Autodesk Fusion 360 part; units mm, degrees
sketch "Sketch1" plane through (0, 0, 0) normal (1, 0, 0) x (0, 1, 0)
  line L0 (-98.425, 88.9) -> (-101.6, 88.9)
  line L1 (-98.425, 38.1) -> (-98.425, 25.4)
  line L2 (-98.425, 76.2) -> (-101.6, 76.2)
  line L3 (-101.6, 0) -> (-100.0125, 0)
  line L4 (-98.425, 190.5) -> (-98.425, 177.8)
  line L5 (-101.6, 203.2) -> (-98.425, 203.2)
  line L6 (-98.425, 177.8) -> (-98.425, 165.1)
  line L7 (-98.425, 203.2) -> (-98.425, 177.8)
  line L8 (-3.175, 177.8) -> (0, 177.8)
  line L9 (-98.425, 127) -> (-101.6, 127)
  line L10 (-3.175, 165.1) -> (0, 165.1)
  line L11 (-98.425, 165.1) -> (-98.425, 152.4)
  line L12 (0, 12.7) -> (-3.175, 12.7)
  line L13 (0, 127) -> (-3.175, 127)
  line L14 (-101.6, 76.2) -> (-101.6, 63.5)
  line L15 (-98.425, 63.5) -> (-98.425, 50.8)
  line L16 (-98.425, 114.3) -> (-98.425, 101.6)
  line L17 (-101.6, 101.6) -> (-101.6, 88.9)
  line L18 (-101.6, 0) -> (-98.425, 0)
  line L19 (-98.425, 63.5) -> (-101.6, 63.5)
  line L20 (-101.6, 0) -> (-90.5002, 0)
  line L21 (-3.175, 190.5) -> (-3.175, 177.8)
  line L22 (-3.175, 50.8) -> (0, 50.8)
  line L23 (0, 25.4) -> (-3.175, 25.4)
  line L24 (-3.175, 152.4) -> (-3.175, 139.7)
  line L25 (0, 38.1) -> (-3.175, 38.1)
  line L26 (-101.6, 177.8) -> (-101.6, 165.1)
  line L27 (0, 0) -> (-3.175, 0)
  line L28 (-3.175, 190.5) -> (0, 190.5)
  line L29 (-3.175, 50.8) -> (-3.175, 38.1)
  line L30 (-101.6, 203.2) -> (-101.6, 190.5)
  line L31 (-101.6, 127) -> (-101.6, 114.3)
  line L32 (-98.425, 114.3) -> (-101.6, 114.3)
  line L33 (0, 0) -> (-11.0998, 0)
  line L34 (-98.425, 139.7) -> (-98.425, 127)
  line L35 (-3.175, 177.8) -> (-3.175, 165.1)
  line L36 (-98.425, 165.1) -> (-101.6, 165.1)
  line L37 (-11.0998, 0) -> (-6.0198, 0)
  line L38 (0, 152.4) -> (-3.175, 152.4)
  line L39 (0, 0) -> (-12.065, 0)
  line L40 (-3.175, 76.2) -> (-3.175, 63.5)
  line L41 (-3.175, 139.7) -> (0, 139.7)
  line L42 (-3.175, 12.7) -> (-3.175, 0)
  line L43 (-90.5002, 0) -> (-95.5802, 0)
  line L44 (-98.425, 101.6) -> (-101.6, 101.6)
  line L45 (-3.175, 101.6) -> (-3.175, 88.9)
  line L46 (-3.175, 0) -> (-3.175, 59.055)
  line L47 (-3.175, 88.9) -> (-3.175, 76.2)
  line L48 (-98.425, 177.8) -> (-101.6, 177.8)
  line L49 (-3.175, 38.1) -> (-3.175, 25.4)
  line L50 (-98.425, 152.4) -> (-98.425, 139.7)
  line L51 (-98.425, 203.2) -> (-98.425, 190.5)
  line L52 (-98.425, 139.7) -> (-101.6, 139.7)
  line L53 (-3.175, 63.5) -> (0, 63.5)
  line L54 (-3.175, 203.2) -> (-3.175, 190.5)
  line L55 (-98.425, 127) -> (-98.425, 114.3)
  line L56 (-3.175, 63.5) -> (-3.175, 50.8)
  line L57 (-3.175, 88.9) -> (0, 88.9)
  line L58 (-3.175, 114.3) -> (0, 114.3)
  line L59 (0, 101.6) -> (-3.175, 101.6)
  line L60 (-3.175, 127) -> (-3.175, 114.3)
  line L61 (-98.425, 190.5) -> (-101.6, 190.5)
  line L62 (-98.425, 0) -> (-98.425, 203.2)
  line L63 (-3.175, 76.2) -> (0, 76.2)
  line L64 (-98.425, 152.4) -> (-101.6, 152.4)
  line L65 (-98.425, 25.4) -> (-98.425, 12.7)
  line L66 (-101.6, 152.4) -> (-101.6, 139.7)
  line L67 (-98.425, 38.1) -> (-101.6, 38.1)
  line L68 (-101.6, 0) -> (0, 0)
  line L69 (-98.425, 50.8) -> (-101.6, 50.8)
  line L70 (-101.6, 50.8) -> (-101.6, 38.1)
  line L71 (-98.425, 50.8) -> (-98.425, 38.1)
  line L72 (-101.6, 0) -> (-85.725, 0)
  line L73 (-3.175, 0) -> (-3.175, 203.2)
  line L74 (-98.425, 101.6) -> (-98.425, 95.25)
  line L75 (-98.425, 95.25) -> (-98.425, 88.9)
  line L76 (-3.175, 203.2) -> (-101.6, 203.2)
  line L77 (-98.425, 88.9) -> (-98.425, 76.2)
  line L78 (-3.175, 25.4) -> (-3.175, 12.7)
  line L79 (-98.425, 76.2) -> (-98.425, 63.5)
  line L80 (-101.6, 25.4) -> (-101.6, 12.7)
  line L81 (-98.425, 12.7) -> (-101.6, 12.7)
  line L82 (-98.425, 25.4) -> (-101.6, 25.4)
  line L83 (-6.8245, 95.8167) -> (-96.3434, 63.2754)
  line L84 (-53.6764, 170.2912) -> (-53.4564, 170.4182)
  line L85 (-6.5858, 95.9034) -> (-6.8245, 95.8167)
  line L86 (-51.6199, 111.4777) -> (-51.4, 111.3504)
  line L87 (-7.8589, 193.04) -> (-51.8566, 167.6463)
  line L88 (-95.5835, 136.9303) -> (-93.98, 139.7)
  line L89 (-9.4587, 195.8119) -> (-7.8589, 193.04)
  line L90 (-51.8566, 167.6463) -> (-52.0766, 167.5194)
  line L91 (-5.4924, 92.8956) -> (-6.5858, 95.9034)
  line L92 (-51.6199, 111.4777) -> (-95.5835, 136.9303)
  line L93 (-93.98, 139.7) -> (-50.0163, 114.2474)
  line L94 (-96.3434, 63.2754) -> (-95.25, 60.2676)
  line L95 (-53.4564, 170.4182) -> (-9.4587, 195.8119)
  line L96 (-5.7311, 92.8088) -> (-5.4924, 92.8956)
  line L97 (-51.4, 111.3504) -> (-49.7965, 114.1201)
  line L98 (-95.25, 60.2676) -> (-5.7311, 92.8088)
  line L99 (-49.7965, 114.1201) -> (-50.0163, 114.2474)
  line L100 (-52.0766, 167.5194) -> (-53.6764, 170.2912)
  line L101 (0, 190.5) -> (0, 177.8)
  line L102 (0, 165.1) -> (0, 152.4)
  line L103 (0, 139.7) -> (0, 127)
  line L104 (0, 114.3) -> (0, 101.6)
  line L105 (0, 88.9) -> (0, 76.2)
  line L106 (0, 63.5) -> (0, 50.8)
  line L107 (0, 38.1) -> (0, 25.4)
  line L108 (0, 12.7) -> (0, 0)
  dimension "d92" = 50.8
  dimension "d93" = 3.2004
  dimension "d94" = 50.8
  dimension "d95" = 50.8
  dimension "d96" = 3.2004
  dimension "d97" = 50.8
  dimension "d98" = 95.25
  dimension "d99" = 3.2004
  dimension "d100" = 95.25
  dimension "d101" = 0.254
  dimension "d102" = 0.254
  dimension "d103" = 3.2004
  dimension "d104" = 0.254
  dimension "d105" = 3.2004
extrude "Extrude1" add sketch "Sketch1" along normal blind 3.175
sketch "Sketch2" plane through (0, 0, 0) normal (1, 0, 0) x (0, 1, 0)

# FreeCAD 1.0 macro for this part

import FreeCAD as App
import Part
import Sketcher

V = App.Vector
Q = App.Units.Quantity


def add_polygon(sketch, points):
    """Adds a closed chain of lines whose ends are joined by coincident constraints."""
    first, n = sketch.GeometryCount, len(points)
    for a, b in zip(points, points[1:] + points[:1]):
        sketch.addGeometry(Part.LineSegment(App.Vector(*a, 0), App.Vector(*b, 0)), False)
    for i in range(n):
        sketch.addConstraint(Sketcher.Constraint("Coincident", first + i, 2, first + (i + 1) % n, 1))

doc = App.newDocument("Part")
body = doc.addObject("PartDesign::Body", "Body")

# Sketch on YZ plane
sketch1 = body.newObject("Sketcher::SketchObject", "Sketch")
sketch1.AttachmentSupport = (doc.getObject("YZ_Plane"), [""])
sketch1.MapMode = "FlatFace"
add_polygon(sketch1, [(-98.425, 114.3), (-98.425, 101.6), (-101.6, 101.6), (-101.6, 88.9), (-98.425, 88.9), (-98.425, 76.2), (-101.6, 76.2), (-101.6, 63.5), (-98.425, 63.5), (-98.425, 50.8), (-101.6, 50.8), (-101.6, 38.1), (-98.425, 38.1), (-98.425, 25.4), (-101.6, 25.4), (-101.6, 12.7), (-98.425, 12.7), (-98.425, 0), (0, 0), (0, 12.7), (-3.175, 12.7), (-3.175, 25.4), (0, 25.4), (0, 38.1), (-3.175, 38.1), (-3.175, 50.8), (0, 50.8), (0, 63.5), (-3.175, 63.5), (-3.175, 76.2), (0, 76.2), (0, 88.9), (-3.175, 88.9), (-3.175, 101.6), (0, 101.6), (0, 114.3), (-3.175, 114.3), (-3.175, 127), (0, 127), (0, 139.7), (-3.175, 139.7), (-3.175, 152.4), (0, 152.4), (0, 165.1), (-3.175, 165.1), (-3.175, 177.8), (0, 177.8), (0, 190.5), (-3.175, 190.5), (-3.175, 203.2), (-101.6, 203.2), (-101.6, 190.5), (-98.425, 190.5), (-98.425, 177.8), (-101.6, 177.8), (-101.6, 165.1), (-98.425, 165.1), (-98.425, 152.4), (-101.6, 152.4), (-101.6, 139.7), (-98.425, 139.7), (-98.425, 127), (-101.6, 127), (-101.6, 114.3)])  # lines 0-63
add_polygon(sketch1, [(-96.3434, 63.2754), (-6.8245, 95.8167), (-6.5858, 95.9034), (-5.4924, 92.8956), (-5.7311, 92.8088), (-95.25, 60.2676)])  # lines 64-69
add_polygon(sketch1, [(-51.4, 111.3504), (-51.6199, 111.4777), (-95.5835, 136.9303), (-93.98, 139.7), (-50.0163, 114.2474), (-49.7965, 114.1201)])  # lines 70-75
add_polygon(sketch1, [(-52.0766, 167.5194), (-53.6764, 170.2912), (-53.4564, 170.4182), (-9.4587, 195.8119), (-7.8589, 193.04), (-51.8566, 167.6463)])  # lines 76-81
sketch1.addConstraint([
    Sketcher.Constraint("Vertical", 0),
    Sketcher.Constraint("Horizontal", 1),
    Sketcher.Constraint("Vertical", 2),
    Sketcher.Constraint("Horizontal", 3),
    Sketcher.Constraint("Vertical", 4),
    Sketcher.Constraint("Horizontal", 5),
    Sketcher.Constraint("Vertical", 6),
    Sketcher.Constraint("Horizontal", 7),
    Sketcher.Constraint("Vertical", 8),
    Sketcher.Constraint("Horizontal", 9),
    Sketcher.Constraint("Vertical", 10),
    Sketcher.Constraint("Horizontal", 11),
    Sketcher.Constraint("Vertical", 12),
    Sketcher.Constraint("Horizontal", 13),
    Sketcher.Constraint("Vertical", 14),
    Sketcher.Constraint("Horizontal", 15),
    Sketcher.Constraint("Vertical", 16),
    Sketcher.Constraint("Horizontal", 17),
    Sketcher.Constraint("Vertical", 18),
    Sketcher.Constraint("Horizontal", 19),
    Sketcher.Constraint("Vertical", 20),
    Sketcher.Constraint("Horizontal", 21),
    Sketcher.Constraint("Vertical", 22),
    Sketcher.Constraint("Horizontal", 23),
    Sketcher.Constraint("Vertical", 24),
    Sketcher.Constraint("Horizontal", 25),
    Sketcher.Constraint("Vertical", 26),
    Sketcher.Constraint("Horizontal", 27),
    Sketcher.Constraint("Vertical", 28),
    Sketcher.Constraint("Horizontal", 29),
    Sketcher.Constraint("Vertical", 30),
    Sketcher.Constraint("Horizontal", 31),
    Sketcher.Constraint("Vertical", 32),
    Sketcher.Constraint("Horizontal", 33),
    Sketcher.Constraint("Vertical", 34),
    Sketcher.Constraint("Horizontal", 35),
    Sketcher.Constraint("Vertical", 36),
    Sketcher.Constraint("Horizontal", 37),
    Sketcher.Constraint("Vertical", 38),
    Sketcher.Constraint("Horizontal", 39),
    Sketcher.Constraint("Vertical", 40),
    Sketcher.Constraint("Horizontal", 41),
    Sketcher.Constraint("Vertical", 42),
    Sketcher.Constraint("Horizontal", 43),
    Sketcher.Constraint("Vertical", 44),
    Sketcher.Constraint("Horizontal", 45),
    Sketcher.Constraint("Vertical", 46),
    Sketcher.Constraint("Horizontal", 47),
    Sketcher.Constraint("Vertical", 48),
    Sketcher.Constraint("Horizontal", 49),
    Sketcher.Constraint("Vertical", 50),
    Sketcher.Constraint("Horizontal", 51),
    Sketcher.Constraint("Vertical", 52),
    Sketcher.Constraint("Horizontal", 53),
    Sketcher.Constraint("Vertical", 54),
    Sketcher.Constraint("Horizontal", 55),
    Sketcher.Constraint("Vertical", 56),
    Sketcher.Constraint("Horizontal", 57),
    Sketcher.Constraint("Vertical", 58),
    Sketcher.Constraint("Horizontal", 59),
    Sketcher.Constraint("Vertical", 60),
    Sketcher.Constraint("Horizontal", 61),
    Sketcher.Constraint("Vertical", 62),
    Sketcher.Constraint("Horizontal", 63),
    Sketcher.Constraint("Coincident", 17, 2, -1, 1),
    Sketcher.Constraint("PointOnObject", 21, 2, -2),
    Sketcher.Constraint("PointOnObject", 25, 2, -2),
    Sketcher.Constraint("PointOnObject", 29, 2, -2),
    Sketcher.Constraint("PointOnObject", 33, 2, -2),
    Sketcher.Constraint("PointOnObject", 37, 2, -2),
    Sketcher.Constraint("PointOnObject", 41, 2, -2),
    Sketcher.Constraint("PointOnObject", 45, 2, -2),
    Sketcher.Constraint("Distance", 71, Q("2 in")),
    Sketcher.Constraint("Distance", 73, Q("2 in")),
    Sketcher.Constraint("Distance", 78, Q("2 in")),
    Sketcher.Constraint("Distance", 80, Q("2 in")),
    Sketcher.Constraint("DistanceY", -1, 1, 8, 2, Q("2 in")),
    Sketcher.Constraint("DistanceY", -1, 1, 24, 2, Q("2 in")),
    Sketcher.Constraint("Distance", 64, Q("3.75 in")),
    Sketcher.Constraint("Distance", 65, Q("0.01 in")),
    Sketcher.Constraint("Distance", 67, Q("0.01 in")),
    Sketcher.Constraint("Distance", 68, Q("3.75 in")),
    Sketcher.Constraint("Distance", 70, Q("0.01 in")),
    Sketcher.Constraint("Distance", 74, Q("0.01 in")),
    Sketcher.Constraint("Distance", 77, Q("0.01 in")),
    Sketcher.Constraint("Distance", 81, Q("0.01 in")),
    Sketcher.Constraint("DistanceX", 68, 2, -1, 1, Q("3.75 in")),
    Sketcher.Constraint("Distance", 66, Q("0.126 in")),
    Sketcher.Constraint("Distance", 69, Q("0.126 in")),
    Sketcher.Constraint("Distance", 72, Q("0.126 in")),
    Sketcher.Constraint("Distance", 75, Q("0.126 in")),
    Sketcher.Constraint("Distance", 76, Q("0.126 in")),
    Sketcher.Constraint("Distance", 79, Q("0.126 in")),
    Sketcher.Constraint("DistanceY", 0, 2, 0, 1, Q("0.5 in")),
    Sketcher.Constraint("DistanceY", 2, 2, 2, 1, Q("0.5 in")),
    Sketcher.Constraint("DistanceY", 4, 2, 4, 1, Q("0.5 in")),
    Sketcher.Constraint("DistanceY", 6, 2, 6, 1, Q("0.5 in")),
    Sketcher.Constraint("DistanceY", 8, 2, 8, 1, Q("0.5 in")),
    Sketcher.Constraint("DistanceY", 10, 2, 10, 1, Q("0.5 in")),
    Sketcher.Constraint("DistanceY", 12, 2, 12, 1, Q("0.5 in")),
    Sketcher.Constraint("DistanceY", 14, 2, 14, 1, Q("0.5 in")),
    Sketcher.Constraint("DistanceY", 18, 1, 18, 2, Q("0.5 in")),
    Sketcher.Constraint("DistanceY", 20, 1, 20, 2, Q("0.5 in")),
    Sketcher.Constraint("DistanceY", 22, 1, 22, 2, Q("0.5 in")),
    Sketcher.Constraint("DistanceY", 26, 1, 26, 2, Q("0.5 in")),
    Sketcher.Constraint("DistanceY", 28, 1, 28, 2, Q("0.5 in")),
    Sketcher.Constraint("DistanceY", 30, 1, 30, 2, Q("0.5 in")),
    Sketcher.Constraint("DistanceY", 32, 1, 32, 2, Q("0.5 in")),
    Sketcher.Constraint("DistanceY", 34, 1, 34, 2, Q("0.5 in")),
    Sketcher.Constraint("DistanceY", 36, 1, 36, 2, Q("0.5 in")),
    Sketcher.Constraint("DistanceY", 38, 1, 38, 2, Q("0.5 in")),
    Sketcher.Constraint("DistanceY", 40, 1, 40, 2, Q("0.5 in")),
    Sketcher.Constraint("DistanceY", 42, 1, 42, 2, Q("0.5 in")),
    Sketcher.Constraint("DistanceY", 44, 1, 44, 2, Q("0.5 in")),
    Sketcher.Constraint("DistanceY", 46, 1, 46, 2, Q("0.5 in")),
    Sketcher.Constraint("DistanceY", 48, 1, 48, 2, Q("0.5 in")),
    Sketcher.Constraint("DistanceY", 50, 2, 50, 1, Q("0.5 in")),
    Sketcher.Constraint("DistanceY", 52, 2, 52, 1, Q("0.5 in")),
    Sketcher.Constraint("DistanceY", 54, 2, 54, 1, Q("0.5 in")),
    Sketcher.Constraint("DistanceY", 56, 2, 56, 1, Q("0.5 in")),
    Sketcher.Constraint("DistanceY", 58, 2, 58, 1, Q("0.5 in")),
    Sketcher.Constraint("DistanceY", 60, 2, 60, 1, Q("0.5 in")),
    Sketcher.Constraint("DistanceX", 1, 2, -1, 1, Q("4 in")),
    Sketcher.Constraint("DistanceX", 5, 2, -1, 1, Q("4 in")),
    Sketcher.Constraint("DistanceX", 9, 2, -1, 1, Q("4 in")),
    Sketcher.Constraint("DistanceX", 13, 2, -1, 1, Q("4 in")),
    Sketcher.Constraint("DistanceX", 49, 2, -1, 1, Q("4 in")),
    Sketcher.Constraint("DistanceX", 53, 2, -1, 1, Q("4 in")),
    Sketcher.Constraint("DistanceX", 57, 2, -1, 1, Q("4 in")),
    Sketcher.Constraint("DistanceX", 61, 2, -1, 1, Q("4 in")),
    Sketcher.Constraint("DistanceX", 72, 2, -1, 1, Q("3.7 in")),
    Sketcher.Constraint("DistanceY", -1, 1, 72, 2, Q("5.5 in")),
    Sketcher.Constraint("DistanceY", -1, 1, 79, 2, Q("7.6 in")),
    Sketcher.Constraint("DistanceX", 1, 2, 1, 1, Q("0.125 in")),
    Sketcher.Constraint("DistanceX", 3, 1, 3, 2, Q("0.125 in")),
    Sketcher.Constraint("DistanceX", 7, 1, 7, 2, Q("0.125 in")),
    Sketcher.Constraint("DistanceX", 11, 1, 11, 2, Q("0.125 in")),
    Sketcher.Constraint("DistanceX", 15, 1, 15, 2, Q("0.125 in")),
    Sketcher.Constraint("DistanceX", 19, 2, 19, 1, Q("0.125 in")),
    Sketcher.Constraint("DistanceX", 23, 2, 23, 1, Q("0.125 in")),
    Sketcher.Constraint("DistanceX", 27, 2, 27, 1, Q("0.125 in")),
    Sketcher.Constraint("DistanceX", 31, 2, 31, 1, Q("0.125 in")),
    Sketcher.Constraint("DistanceX", 35, 2, 35, 1, Q("0.125 in")),
    Sketcher.Constraint("DistanceX", 39, 2, 39, 1, Q("0.125 in")),
    Sketcher.Constraint("DistanceX", 43, 2, 43, 1, Q("0.125 in")),
    Sketcher.Constraint("DistanceX", 47, 2, 47, 1, Q("0.125 in")),
    Sketcher.Constraint("DistanceX", 51, 1, 51, 2, Q("0.125 in")),
    Sketcher.Constraint("DistanceX", 55, 1, 55, 2, Q("0.125 in")),
    Sketcher.Constraint("DistanceX", 59, 1, 59, 2, Q("0.125 in")),
    Sketcher.Constraint("DistanceY", -1, 1, 64, 2, Q("3.7723 in")),
    Sketcher.Constraint("DistanceY", -1, 1, 66, 2, Q("3.6573 in")),
    Sketcher.Constraint("DistanceY", -1, 1, 67, 2, Q("3.6539 in")),
    Sketcher.Constraint("DistanceX", 74, 2, -1, 1, Q("1.9605 in")),
    Sketcher.Constraint("DistanceX", 78, 2, -1, 1, Q("0.3724 in")),
    Sketcher.Constraint("DistanceX", 79, 2, -1, 1, Q("0.3094 in")),
    Sketcher.Constraint("DistanceX", 80, 2, -1, 1, Q("2.0416 in")),
    Sketcher.Constraint("DistanceX", 64, 2, -1, 1, 6.8245),
    Sketcher.Constraint("DistanceX", 65, 2, -1, 1, 6.5858),
    Sketcher.Constraint("DistanceX", 70, 2, -1, 1, 51.62),
    Sketcher.Constraint("DistanceY", -1, 1, 70, 2, 111.4777),
    Sketcher.Constraint("DistanceX", 73, 2, -1, 1, 50.0163),
    Sketcher.Constraint("DistanceX", 76, 2, -1, 1, 53.6764),
    Sketcher.Constraint("DistanceX", 77, 2, -1, 1, 53.4564),
])
pad1 = body.newObject("PartDesign::Pad", "Pad")
pad1.Profile = sketch1
pad1.Length = Q("0.125 in")

doc.recompute()
